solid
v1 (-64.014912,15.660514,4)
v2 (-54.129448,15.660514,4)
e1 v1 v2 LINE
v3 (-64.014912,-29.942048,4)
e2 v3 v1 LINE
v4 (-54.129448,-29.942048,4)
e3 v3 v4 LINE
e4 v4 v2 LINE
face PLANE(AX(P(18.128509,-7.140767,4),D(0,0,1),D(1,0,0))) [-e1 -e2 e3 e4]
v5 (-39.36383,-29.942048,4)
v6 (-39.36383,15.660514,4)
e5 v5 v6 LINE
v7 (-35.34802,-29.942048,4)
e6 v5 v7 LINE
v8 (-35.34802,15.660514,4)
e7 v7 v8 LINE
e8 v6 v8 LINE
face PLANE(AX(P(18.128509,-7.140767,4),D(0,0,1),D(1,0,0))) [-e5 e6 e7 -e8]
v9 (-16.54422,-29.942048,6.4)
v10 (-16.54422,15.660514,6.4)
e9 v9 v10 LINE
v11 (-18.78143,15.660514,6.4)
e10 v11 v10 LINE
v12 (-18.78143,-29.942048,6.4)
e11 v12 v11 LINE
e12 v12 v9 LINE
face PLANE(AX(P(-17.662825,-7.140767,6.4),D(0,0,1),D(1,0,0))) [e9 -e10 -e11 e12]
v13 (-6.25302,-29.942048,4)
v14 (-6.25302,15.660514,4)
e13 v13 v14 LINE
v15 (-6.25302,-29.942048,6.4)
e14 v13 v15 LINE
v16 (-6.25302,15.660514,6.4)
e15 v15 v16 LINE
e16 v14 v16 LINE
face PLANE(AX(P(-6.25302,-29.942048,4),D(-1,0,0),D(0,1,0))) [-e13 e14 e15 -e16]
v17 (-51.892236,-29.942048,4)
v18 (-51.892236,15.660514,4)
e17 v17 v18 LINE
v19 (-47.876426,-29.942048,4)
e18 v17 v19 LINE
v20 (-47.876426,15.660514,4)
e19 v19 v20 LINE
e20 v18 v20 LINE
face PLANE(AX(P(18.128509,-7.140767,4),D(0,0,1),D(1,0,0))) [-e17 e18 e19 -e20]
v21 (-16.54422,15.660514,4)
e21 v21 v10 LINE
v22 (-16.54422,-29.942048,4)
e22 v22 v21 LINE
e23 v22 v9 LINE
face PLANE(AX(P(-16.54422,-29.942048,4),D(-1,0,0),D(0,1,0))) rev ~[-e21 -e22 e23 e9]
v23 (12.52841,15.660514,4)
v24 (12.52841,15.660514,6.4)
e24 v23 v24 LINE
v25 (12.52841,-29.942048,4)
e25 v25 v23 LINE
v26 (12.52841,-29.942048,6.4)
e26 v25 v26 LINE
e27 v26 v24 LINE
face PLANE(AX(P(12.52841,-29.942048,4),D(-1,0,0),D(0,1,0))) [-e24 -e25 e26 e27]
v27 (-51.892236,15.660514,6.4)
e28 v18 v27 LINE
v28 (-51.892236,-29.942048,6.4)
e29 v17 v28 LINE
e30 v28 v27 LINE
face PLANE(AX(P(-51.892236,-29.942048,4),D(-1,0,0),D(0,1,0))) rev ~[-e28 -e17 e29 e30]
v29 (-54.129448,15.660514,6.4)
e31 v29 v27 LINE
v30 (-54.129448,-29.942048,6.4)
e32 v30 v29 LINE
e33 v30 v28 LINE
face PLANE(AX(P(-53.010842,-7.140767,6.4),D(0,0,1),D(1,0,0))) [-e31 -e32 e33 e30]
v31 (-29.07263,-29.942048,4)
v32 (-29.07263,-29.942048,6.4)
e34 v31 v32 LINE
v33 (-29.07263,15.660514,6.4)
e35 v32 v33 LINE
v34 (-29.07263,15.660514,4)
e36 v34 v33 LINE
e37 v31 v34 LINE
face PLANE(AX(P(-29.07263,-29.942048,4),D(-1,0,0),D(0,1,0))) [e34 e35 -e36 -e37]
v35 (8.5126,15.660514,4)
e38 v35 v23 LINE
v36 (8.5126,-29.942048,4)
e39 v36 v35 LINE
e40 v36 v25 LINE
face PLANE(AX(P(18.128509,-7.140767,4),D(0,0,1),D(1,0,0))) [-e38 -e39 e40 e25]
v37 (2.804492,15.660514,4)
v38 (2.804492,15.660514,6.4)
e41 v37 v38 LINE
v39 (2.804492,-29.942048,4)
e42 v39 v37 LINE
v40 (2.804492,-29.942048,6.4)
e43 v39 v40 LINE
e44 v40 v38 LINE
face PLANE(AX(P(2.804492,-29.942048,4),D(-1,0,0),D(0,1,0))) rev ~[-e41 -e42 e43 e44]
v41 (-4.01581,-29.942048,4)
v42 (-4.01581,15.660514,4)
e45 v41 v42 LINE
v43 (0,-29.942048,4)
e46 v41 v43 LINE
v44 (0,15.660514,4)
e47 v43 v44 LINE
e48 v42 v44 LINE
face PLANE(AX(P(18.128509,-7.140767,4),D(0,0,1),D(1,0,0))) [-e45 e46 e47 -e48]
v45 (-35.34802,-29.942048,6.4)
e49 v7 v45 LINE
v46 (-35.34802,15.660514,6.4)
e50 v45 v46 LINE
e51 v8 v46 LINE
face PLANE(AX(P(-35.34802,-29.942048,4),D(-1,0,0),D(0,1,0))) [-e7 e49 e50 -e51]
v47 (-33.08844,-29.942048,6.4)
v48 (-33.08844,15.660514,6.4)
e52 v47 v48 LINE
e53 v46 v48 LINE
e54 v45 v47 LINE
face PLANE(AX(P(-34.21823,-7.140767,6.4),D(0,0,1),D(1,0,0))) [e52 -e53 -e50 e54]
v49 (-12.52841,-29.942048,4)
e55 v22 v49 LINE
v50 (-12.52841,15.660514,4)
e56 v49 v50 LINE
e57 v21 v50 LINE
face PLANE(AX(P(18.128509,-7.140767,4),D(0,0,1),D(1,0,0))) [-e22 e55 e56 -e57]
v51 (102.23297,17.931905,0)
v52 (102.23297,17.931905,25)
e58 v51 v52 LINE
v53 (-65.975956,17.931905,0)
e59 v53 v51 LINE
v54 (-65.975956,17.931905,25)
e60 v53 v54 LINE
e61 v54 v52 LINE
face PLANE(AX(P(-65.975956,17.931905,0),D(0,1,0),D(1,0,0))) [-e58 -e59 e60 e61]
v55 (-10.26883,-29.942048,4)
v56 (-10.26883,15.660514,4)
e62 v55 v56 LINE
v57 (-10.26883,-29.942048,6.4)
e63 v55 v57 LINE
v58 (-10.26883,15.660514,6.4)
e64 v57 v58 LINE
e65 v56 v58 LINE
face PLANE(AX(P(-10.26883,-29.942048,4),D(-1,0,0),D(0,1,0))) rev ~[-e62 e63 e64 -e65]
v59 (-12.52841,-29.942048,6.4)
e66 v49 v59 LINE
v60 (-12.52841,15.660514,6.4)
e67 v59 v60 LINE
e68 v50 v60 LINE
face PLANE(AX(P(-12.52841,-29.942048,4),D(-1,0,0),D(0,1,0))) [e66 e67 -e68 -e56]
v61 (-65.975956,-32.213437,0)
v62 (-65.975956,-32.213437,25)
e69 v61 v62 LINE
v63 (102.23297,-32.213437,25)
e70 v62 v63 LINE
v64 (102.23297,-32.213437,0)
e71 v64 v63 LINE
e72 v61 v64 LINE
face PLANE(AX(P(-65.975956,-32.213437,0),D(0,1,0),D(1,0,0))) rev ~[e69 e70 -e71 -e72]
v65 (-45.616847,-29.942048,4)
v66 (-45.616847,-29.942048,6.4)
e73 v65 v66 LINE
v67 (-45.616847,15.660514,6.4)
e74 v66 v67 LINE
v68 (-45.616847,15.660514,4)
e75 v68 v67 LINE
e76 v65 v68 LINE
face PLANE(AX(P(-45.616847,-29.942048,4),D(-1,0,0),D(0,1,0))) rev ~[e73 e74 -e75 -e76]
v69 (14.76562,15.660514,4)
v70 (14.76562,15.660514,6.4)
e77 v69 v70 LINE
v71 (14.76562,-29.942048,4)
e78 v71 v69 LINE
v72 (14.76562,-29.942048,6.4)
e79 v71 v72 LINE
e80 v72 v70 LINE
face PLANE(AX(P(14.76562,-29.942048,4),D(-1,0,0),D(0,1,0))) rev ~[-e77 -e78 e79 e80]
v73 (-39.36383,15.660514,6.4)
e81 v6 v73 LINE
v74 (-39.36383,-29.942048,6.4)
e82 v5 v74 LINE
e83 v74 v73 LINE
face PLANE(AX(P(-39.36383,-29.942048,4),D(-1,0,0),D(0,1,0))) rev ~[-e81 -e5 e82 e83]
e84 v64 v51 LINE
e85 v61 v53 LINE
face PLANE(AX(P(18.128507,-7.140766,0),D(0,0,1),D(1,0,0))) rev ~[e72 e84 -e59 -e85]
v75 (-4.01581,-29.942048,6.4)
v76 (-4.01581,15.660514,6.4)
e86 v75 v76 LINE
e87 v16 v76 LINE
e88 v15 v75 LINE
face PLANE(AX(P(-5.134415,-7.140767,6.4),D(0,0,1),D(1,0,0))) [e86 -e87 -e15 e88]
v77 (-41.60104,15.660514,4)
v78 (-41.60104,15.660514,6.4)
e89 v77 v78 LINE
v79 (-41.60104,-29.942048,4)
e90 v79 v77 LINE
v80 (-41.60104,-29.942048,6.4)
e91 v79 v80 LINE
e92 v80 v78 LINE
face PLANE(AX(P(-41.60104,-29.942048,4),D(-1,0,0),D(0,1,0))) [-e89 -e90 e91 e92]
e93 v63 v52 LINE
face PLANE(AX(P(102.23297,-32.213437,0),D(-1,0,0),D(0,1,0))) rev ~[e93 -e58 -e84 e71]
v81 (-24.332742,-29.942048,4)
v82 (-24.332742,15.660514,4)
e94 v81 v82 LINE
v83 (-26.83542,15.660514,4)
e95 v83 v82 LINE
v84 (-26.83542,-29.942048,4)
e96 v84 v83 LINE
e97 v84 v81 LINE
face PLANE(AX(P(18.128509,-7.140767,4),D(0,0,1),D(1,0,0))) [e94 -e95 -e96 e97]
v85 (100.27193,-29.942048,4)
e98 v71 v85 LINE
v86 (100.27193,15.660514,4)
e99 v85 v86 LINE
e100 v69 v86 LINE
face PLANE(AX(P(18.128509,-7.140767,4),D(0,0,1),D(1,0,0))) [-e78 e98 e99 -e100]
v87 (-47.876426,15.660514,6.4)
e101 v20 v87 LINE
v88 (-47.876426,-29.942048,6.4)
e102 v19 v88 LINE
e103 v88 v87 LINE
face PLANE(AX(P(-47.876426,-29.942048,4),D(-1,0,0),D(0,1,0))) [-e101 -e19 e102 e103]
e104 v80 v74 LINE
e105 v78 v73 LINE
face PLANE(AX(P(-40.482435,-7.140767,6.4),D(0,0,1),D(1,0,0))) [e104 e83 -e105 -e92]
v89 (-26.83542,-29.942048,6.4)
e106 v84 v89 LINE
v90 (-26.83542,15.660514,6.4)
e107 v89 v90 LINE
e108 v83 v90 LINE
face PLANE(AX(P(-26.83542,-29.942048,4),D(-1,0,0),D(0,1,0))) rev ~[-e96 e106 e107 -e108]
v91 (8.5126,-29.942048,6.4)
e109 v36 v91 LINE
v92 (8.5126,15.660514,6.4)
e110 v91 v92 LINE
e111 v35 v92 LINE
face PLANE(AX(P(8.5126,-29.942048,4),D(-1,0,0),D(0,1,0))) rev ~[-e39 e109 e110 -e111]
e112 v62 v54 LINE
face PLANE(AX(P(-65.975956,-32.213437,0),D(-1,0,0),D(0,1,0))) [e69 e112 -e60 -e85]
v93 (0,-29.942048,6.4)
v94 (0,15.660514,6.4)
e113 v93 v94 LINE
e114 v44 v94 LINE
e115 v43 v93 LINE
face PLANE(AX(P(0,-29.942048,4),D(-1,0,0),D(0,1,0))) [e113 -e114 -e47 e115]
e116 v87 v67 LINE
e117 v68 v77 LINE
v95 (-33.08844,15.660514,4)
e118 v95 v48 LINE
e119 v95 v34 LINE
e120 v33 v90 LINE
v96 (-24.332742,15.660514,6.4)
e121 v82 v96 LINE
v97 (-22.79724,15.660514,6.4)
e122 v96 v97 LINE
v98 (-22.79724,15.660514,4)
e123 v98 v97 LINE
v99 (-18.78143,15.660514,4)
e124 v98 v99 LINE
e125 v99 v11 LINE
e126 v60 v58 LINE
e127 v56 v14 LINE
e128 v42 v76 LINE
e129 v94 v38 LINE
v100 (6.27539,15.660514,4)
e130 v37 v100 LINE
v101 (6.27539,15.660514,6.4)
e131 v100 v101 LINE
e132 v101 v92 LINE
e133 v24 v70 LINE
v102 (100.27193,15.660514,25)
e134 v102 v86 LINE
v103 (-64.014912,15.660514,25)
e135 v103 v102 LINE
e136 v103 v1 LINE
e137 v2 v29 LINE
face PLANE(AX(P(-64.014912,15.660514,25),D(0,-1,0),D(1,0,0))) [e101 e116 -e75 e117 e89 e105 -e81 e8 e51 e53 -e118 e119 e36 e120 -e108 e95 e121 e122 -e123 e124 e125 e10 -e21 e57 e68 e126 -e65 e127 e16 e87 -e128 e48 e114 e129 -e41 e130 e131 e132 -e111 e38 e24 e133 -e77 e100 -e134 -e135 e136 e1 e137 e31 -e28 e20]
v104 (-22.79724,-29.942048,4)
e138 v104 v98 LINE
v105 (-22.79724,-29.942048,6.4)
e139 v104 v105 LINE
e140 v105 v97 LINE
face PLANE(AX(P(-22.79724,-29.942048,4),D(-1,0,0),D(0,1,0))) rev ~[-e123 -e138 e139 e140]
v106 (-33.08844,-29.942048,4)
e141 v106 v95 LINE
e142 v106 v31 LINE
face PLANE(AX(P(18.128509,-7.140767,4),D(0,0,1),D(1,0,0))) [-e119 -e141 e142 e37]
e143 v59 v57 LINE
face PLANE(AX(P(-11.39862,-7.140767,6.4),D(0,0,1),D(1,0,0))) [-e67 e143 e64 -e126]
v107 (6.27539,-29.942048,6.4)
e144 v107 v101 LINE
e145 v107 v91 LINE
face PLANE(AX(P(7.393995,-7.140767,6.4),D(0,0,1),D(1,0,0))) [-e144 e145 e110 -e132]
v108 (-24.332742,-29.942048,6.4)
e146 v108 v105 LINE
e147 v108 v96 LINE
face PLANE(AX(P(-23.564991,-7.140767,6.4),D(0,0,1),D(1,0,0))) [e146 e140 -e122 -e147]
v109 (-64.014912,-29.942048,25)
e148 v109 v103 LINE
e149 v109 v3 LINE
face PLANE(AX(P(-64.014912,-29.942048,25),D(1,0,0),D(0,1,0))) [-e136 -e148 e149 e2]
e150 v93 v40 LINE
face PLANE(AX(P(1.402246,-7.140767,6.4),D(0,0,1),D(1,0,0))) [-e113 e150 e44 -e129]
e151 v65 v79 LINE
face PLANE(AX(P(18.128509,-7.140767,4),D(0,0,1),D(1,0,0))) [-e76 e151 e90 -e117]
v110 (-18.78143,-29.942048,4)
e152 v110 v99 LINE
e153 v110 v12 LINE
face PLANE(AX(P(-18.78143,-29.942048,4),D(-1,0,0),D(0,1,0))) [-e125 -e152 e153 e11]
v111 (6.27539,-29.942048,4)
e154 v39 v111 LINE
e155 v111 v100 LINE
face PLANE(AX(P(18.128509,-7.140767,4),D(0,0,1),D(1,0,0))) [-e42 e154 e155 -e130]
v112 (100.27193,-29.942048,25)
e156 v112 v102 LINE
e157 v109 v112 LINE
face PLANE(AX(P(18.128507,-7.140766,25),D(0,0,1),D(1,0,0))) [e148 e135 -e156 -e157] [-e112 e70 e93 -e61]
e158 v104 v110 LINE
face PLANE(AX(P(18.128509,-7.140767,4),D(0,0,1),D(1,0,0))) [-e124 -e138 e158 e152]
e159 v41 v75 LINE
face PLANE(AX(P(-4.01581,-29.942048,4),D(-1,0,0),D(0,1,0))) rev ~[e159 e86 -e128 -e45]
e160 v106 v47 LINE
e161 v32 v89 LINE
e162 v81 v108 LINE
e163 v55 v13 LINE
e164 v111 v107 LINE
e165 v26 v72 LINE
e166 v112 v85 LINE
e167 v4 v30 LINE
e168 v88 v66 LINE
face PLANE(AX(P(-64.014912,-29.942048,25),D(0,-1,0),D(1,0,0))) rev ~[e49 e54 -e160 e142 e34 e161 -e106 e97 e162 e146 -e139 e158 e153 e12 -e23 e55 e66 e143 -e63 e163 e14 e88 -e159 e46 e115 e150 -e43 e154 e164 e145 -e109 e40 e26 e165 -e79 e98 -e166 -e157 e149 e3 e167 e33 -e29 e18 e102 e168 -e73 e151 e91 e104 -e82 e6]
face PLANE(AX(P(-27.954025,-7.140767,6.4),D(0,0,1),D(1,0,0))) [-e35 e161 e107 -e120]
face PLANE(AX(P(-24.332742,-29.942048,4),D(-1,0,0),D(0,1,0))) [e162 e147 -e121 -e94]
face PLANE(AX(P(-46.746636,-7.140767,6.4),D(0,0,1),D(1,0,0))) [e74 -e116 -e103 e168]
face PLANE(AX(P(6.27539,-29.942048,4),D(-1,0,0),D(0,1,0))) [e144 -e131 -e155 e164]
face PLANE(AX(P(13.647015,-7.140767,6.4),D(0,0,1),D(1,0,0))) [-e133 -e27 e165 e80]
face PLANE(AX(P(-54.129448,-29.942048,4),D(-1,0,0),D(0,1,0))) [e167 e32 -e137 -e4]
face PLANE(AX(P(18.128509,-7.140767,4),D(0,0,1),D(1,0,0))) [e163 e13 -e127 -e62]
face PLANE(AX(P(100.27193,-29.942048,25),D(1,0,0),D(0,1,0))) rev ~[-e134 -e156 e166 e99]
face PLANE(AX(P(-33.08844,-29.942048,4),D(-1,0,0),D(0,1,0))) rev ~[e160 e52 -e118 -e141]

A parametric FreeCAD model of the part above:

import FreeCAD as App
import Part
import Sketcher

V = App.Vector


def add_polygon(sketch, points):
    """Adds a closed chain of lines whose ends are joined by coincident constraints."""
    first, n = sketch.GeometryCount, len(points)
    for a, b in zip(points, points[1:] + points[:1]):
        sketch.addGeometry(Part.LineSegment(App.Vector(*a, 0), App.Vector(*b, 0)), False)
    for i in range(n):
        sketch.addConstraint(Sketcher.Constraint("Coincident", first + i, 2, first + (i + 1) % n, 1))

doc = App.newDocument("Part")
body = doc.addObject("PartDesign::Body", "Body")

sketch1 = doc.addObject("Sketcher::SketchObject", "Sketch")
body.addObject(sketch1)
sketch1.AttachmentSupport = (doc.XY_Plane, [""])
sketch1.MapMode = "FlatFace"
add_polygon(sketch1, [(-66, 18), (-66, -32), (102, -32), (102, 18)])
sketch1.addConstraint([
    Sketcher.Constraint("Vertical", 0),
    Sketcher.Constraint("Horizontal", 1),
    Sketcher.Constraint("Vertical", 2),
    Sketcher.Constraint("Horizontal", 3),
    Sketcher.Constraint("DistanceX", 1, 1, 1, 2, 168.208927),
    Sketcher.Constraint("DistanceY", 0, 2, 0, 1, 50.145343),
    Sketcher.Constraint("DistanceX", -1, 1, 1, 2, 102.23297),
    Sketcher.Constraint("DistanceY", 0, 2, -1, 1, 32.213437),
])
pad1 = doc.addObject("PartDesign::Pad", "Pad")
body.addObject(pad1)
pad1.Profile = sketch1
pad1.Length = 25

sketch2 = doc.addObject("Sketcher::SketchObject", "Sketch001")
body.addObject(sketch2)
sketch2.AttachmentSupport = (doc.XY_Plane, [""])
sketch2.MapMode = "FlatFace"
sketch2.AttachmentOffset = App.Placement(V(0, 0, 25), App.Rotation())
add_polygon(sketch2, [(-64, 16), (-64, -30), (100, -30), (100, 16)])
sketch2.addConstraint([
    Sketcher.Constraint("Vertical", 0),
    Sketcher.Constraint("Horizontal", 1),
    Sketcher.Constraint("Vertical", 2),
    Sketcher.Constraint("Horizontal", 3),
    Sketcher.Constraint("DistanceX", 1, 1, 1, 2, 164.286842),
    Sketcher.Constraint("DistanceY", 0, 2, 0, 1, 45.602561),
    Sketcher.Constraint("DistanceX", 0, 2, -1, 1, 64.014912),
    Sketcher.Constraint("DistanceY", 0, 2, -1, 1, 29.942048),
])
pocket1 = doc.addObject("PartDesign::Pocket", "Pocket")
body.addObject(pocket1)
pocket1.Profile = sketch2
pocket1.Length = 21

sketch3 = doc.addObject("Sketcher::SketchObject", "Sketch002")
body.addObject(sketch3)
sketch3.AttachmentSupport = (doc.XY_Plane, [""])
sketch3.MapMode = "FlatFace"
sketch3.AttachmentOffset = App.Placement(V(0, 0, 4), App.Rotation())
add_polygon(sketch3, [(-54.1, 15.7), (-54.1, -29.9), (-51.9, -29.9), (-51.9, 15.7)])
add_polygon(sketch3, [(-41.6, 15.7), (-41.6, -29.9), (-39.4, -29.9), (-39.4, 15.7)])
add_polygon(sketch3, [(-29.1, 15.7), (-29.1, -29.9), (-26.8, -29.9), (-26.8, 15.7)])
add_polygon(sketch3, [(-18.8, 15.7), (-18.8, -29.9), (-16.5, -29.9), (-16.5, 15.7)])
add_polygon(sketch3, [(-6.3, 15.7), (-6.3, -29.9), (-4, -29.9), (-4, 15.7)])
add_polygon(sketch3, [(6.3, 15.7), (6.3, -29.9), (8.5, -29.9), (8.5, 15.7)])
add_polygon(sketch3, [(-47.9, 15.7), (-47.9, -29.9), (-45.6, -29.9), (-45.6, 15.7)])
add_polygon(sketch3, [(-35.3, 15.7), (-35.3, -29.9), (-33.1, -29.9), (-33.1, 15.7)])
add_polygon(sketch3, [(-24.3, 15.7), (-24.3, -29.9), (-22.8, -29.9), (-22.8, 15.7)])
add_polygon(sketch3, [(-12.5, 15.7), (-12.5, -29.9), (-10.3, -29.9), (-10.3, 15.7)])
add_polygon(sketch3, [(0, 15.7), (0, -29.9), (2.8, -29.9), (2.8, 15.7)])
add_polygon(sketch3, [(12.5, 15.7), (12.5, -29.9), (14.8, -29.9), (14.8, 15.7)])
sketch3.addConstraint([
    Sketcher.Constraint("Vertical", 0),
    Sketcher.Constraint("Horizontal", 1),
    Sketcher.Constraint("Vertical", 2),
    Sketcher.Constraint("Horizontal", 3),
    Sketcher.Constraint("Vertical", 4),
    Sketcher.Constraint("Horizontal", 5),
    Sketcher.Constraint("Vertical", 6),
    Sketcher.Constraint("Horizontal", 7),
    Sketcher.Constraint("Vertical", 8),
    Sketcher.Constraint("Horizontal", 9),
    Sketcher.Constraint("Vertical", 10),
    Sketcher.Constraint("Horizontal", 11),
    Sketcher.Constraint("Vertical", 12),
    Sketcher.Constraint("Horizontal", 13),
    Sketcher.Constraint("Vertical", 14),
    Sketcher.Constraint("Horizontal", 15),
    Sketcher.Constraint("Vertical", 16),
    Sketcher.Constraint("Horizontal", 17),
    Sketcher.Constraint("Vertical", 18),
    Sketcher.Constraint("Horizontal", 19),
    Sketcher.Constraint("Vertical", 20),
    Sketcher.Constraint("Horizontal", 21),
    Sketcher.Constraint("Vertical", 22),
    Sketcher.Constraint("Horizontal", 23),
    Sketcher.Constraint("Vertical", 24),
    Sketcher.Constraint("Horizontal", 25),
    Sketcher.Constraint("Vertical", 26),
    Sketcher.Constraint("Horizontal", 27),
    Sketcher.Constraint("Vertical", 28),
    Sketcher.Constraint("Horizontal", 29),
    Sketcher.Constraint("Vertical", 30),
    Sketcher.Constraint("Horizontal", 31),
    Sketcher.Constraint("Vertical", 32),
    Sketcher.Constraint("Horizontal", 33),
    Sketcher.Constraint("Vertical", 34),
    Sketcher.Constraint("Horizontal", 35),
    Sketcher.Constraint("Vertical", 36),
    Sketcher.Constraint("Horizontal", 37),
    Sketcher.Constraint("Vertical", 38),
    Sketcher.Constraint("Horizontal", 39),
    Sketcher.Constraint("Vertical", 40),
    Sketcher.Constraint("Horizontal", 41),
    Sketcher.Constraint("Vertical", 42),
    Sketcher.Constraint("Horizontal", 43),
    Sketcher.Constraint("Vertical", 44),
    Sketcher.Constraint("Horizontal", 45),
    Sketcher.Constraint("Vertical", 46),
    Sketcher.Constraint("Horizontal", 47),
    Sketcher.Constraint("Symmetric", 36, 2, 44, 2, -2),
    Sketcher.Constraint("PointOnObject", 40, 2, -2),
    Sketcher.Constraint("Horizontal", 1, 2, 4, 2),
    Sketcher.Constraint("Horizontal", 3, 2, 6, 2),
    Sketcher.Constraint("Horizontal", 5, 2, 8, 2),
    Sketcher.Constraint("Horizontal", 7, 2, 10, 2),
    Sketcher.Constraint("Horizontal", 9, 2, 12, 2),
    Sketcher.Constraint("Horizontal", 11, 2, 14, 2),
    Sketcher.Constraint("Horizontal", 13, 2, 16, 2),
    Sketcher.Constraint("Horizontal", 15, 2, 18, 2),
    Sketcher.Constraint("Horizontal", 17, 2, 20, 2),
    Sketcher.Constraint("Horizontal", 19, 2, 22, 2),
    Sketcher.Constraint("Horizontal", 21, 2, 24, 2),
    Sketcher.Constraint("Horizontal", 23, 2, 26, 2),
    Sketcher.Constraint("Horizontal", 25, 2, 28, 2),
    Sketcher.Constraint("Horizontal", 27, 2, 30, 2),
    Sketcher.Constraint("Horizontal", 29, 2, 32, 2),
    Sketcher.Constraint("Horizontal", 31, 2, 34, 2),
    Sketcher.Constraint("Horizontal", 33, 2, 36, 2),
    Sketcher.Constraint("Horizontal", 35, 2, 38, 2),
    Sketcher.Constraint("Horizontal", 37, 2, 40, 2),
    Sketcher.Constraint("Horizontal", 39, 2, 42, 2),
    Sketcher.Constraint("Horizontal", 43, 2, 46, 2),
    Sketcher.Constraint("Equal", 7, 9),
    Sketcher.Constraint("Equal", 3, 11),
    Sketcher.Constraint("Equal", 11, 13),
    Sketcher.Constraint("Equal", 15, 17),
    Sketcher.Constraint("Equal", 19, 21),
    Sketcher.Constraint("Equal", 27, 29),
    Sketcher.Constraint("Equal", 31, 37),
    Sketcher.Constraint("Equal", 23, 45),
    Sketcher.Constraint("DistanceX", 1, 1, 1, 2, 2.237212),
    Sketcher.Constraint("DistanceX", 25, 1, 25, 2, 2.259579),
    Sketcher.Constraint("DistanceY", 0, 2, 0, 1, 45.602561),
    Sketcher.Constraint("DistanceX", -1, 1, 21, 2, 8.5126),
    Sketcher.Constraint("DistanceX", 5, 2, 8, 2, 10.2912),
    Sketcher.Constraint("DistanceX", 8, 2, 12, 2, 10.2912),
    Sketcher.Constraint("DistanceX", 13, 2, 16, 2, 10.2912),
    Sketcher.Constraint("DistanceX", 17, 2, 20, 2, 10.2912),
    Sketcher.Constraint("DistanceX", 0, 2, 25, 2, 8.512601),
    Sketcher.Constraint("DistanceX", 28, 2, 9, 2, 8.5126),
    Sketcher.Constraint("DistanceX", 30, 2, 34, 2, 10.2912),
    Sketcher.Constraint("DistanceX", 36, 2, 17, 2, 8.5126),
    Sketcher.Constraint("DistanceX", 33, 1, 33, 2, 1.535502),
    Sketcher.Constraint("DistanceX", 41, 1, 41, 2, 2.804493),
    Sketcher.Constraint("DistanceX", 0, 2, -1, 1, 54.129448),
    Sketcher.Constraint("DistanceY", 0, 2, -1, 1, 29.942048),
])
pad2 = doc.addObject("PartDesign::Pad", "Pad001")
body.addObject(pad2)
pad2.Profile = sketch3
pad2.Length = 2.4

doc.recompute()
